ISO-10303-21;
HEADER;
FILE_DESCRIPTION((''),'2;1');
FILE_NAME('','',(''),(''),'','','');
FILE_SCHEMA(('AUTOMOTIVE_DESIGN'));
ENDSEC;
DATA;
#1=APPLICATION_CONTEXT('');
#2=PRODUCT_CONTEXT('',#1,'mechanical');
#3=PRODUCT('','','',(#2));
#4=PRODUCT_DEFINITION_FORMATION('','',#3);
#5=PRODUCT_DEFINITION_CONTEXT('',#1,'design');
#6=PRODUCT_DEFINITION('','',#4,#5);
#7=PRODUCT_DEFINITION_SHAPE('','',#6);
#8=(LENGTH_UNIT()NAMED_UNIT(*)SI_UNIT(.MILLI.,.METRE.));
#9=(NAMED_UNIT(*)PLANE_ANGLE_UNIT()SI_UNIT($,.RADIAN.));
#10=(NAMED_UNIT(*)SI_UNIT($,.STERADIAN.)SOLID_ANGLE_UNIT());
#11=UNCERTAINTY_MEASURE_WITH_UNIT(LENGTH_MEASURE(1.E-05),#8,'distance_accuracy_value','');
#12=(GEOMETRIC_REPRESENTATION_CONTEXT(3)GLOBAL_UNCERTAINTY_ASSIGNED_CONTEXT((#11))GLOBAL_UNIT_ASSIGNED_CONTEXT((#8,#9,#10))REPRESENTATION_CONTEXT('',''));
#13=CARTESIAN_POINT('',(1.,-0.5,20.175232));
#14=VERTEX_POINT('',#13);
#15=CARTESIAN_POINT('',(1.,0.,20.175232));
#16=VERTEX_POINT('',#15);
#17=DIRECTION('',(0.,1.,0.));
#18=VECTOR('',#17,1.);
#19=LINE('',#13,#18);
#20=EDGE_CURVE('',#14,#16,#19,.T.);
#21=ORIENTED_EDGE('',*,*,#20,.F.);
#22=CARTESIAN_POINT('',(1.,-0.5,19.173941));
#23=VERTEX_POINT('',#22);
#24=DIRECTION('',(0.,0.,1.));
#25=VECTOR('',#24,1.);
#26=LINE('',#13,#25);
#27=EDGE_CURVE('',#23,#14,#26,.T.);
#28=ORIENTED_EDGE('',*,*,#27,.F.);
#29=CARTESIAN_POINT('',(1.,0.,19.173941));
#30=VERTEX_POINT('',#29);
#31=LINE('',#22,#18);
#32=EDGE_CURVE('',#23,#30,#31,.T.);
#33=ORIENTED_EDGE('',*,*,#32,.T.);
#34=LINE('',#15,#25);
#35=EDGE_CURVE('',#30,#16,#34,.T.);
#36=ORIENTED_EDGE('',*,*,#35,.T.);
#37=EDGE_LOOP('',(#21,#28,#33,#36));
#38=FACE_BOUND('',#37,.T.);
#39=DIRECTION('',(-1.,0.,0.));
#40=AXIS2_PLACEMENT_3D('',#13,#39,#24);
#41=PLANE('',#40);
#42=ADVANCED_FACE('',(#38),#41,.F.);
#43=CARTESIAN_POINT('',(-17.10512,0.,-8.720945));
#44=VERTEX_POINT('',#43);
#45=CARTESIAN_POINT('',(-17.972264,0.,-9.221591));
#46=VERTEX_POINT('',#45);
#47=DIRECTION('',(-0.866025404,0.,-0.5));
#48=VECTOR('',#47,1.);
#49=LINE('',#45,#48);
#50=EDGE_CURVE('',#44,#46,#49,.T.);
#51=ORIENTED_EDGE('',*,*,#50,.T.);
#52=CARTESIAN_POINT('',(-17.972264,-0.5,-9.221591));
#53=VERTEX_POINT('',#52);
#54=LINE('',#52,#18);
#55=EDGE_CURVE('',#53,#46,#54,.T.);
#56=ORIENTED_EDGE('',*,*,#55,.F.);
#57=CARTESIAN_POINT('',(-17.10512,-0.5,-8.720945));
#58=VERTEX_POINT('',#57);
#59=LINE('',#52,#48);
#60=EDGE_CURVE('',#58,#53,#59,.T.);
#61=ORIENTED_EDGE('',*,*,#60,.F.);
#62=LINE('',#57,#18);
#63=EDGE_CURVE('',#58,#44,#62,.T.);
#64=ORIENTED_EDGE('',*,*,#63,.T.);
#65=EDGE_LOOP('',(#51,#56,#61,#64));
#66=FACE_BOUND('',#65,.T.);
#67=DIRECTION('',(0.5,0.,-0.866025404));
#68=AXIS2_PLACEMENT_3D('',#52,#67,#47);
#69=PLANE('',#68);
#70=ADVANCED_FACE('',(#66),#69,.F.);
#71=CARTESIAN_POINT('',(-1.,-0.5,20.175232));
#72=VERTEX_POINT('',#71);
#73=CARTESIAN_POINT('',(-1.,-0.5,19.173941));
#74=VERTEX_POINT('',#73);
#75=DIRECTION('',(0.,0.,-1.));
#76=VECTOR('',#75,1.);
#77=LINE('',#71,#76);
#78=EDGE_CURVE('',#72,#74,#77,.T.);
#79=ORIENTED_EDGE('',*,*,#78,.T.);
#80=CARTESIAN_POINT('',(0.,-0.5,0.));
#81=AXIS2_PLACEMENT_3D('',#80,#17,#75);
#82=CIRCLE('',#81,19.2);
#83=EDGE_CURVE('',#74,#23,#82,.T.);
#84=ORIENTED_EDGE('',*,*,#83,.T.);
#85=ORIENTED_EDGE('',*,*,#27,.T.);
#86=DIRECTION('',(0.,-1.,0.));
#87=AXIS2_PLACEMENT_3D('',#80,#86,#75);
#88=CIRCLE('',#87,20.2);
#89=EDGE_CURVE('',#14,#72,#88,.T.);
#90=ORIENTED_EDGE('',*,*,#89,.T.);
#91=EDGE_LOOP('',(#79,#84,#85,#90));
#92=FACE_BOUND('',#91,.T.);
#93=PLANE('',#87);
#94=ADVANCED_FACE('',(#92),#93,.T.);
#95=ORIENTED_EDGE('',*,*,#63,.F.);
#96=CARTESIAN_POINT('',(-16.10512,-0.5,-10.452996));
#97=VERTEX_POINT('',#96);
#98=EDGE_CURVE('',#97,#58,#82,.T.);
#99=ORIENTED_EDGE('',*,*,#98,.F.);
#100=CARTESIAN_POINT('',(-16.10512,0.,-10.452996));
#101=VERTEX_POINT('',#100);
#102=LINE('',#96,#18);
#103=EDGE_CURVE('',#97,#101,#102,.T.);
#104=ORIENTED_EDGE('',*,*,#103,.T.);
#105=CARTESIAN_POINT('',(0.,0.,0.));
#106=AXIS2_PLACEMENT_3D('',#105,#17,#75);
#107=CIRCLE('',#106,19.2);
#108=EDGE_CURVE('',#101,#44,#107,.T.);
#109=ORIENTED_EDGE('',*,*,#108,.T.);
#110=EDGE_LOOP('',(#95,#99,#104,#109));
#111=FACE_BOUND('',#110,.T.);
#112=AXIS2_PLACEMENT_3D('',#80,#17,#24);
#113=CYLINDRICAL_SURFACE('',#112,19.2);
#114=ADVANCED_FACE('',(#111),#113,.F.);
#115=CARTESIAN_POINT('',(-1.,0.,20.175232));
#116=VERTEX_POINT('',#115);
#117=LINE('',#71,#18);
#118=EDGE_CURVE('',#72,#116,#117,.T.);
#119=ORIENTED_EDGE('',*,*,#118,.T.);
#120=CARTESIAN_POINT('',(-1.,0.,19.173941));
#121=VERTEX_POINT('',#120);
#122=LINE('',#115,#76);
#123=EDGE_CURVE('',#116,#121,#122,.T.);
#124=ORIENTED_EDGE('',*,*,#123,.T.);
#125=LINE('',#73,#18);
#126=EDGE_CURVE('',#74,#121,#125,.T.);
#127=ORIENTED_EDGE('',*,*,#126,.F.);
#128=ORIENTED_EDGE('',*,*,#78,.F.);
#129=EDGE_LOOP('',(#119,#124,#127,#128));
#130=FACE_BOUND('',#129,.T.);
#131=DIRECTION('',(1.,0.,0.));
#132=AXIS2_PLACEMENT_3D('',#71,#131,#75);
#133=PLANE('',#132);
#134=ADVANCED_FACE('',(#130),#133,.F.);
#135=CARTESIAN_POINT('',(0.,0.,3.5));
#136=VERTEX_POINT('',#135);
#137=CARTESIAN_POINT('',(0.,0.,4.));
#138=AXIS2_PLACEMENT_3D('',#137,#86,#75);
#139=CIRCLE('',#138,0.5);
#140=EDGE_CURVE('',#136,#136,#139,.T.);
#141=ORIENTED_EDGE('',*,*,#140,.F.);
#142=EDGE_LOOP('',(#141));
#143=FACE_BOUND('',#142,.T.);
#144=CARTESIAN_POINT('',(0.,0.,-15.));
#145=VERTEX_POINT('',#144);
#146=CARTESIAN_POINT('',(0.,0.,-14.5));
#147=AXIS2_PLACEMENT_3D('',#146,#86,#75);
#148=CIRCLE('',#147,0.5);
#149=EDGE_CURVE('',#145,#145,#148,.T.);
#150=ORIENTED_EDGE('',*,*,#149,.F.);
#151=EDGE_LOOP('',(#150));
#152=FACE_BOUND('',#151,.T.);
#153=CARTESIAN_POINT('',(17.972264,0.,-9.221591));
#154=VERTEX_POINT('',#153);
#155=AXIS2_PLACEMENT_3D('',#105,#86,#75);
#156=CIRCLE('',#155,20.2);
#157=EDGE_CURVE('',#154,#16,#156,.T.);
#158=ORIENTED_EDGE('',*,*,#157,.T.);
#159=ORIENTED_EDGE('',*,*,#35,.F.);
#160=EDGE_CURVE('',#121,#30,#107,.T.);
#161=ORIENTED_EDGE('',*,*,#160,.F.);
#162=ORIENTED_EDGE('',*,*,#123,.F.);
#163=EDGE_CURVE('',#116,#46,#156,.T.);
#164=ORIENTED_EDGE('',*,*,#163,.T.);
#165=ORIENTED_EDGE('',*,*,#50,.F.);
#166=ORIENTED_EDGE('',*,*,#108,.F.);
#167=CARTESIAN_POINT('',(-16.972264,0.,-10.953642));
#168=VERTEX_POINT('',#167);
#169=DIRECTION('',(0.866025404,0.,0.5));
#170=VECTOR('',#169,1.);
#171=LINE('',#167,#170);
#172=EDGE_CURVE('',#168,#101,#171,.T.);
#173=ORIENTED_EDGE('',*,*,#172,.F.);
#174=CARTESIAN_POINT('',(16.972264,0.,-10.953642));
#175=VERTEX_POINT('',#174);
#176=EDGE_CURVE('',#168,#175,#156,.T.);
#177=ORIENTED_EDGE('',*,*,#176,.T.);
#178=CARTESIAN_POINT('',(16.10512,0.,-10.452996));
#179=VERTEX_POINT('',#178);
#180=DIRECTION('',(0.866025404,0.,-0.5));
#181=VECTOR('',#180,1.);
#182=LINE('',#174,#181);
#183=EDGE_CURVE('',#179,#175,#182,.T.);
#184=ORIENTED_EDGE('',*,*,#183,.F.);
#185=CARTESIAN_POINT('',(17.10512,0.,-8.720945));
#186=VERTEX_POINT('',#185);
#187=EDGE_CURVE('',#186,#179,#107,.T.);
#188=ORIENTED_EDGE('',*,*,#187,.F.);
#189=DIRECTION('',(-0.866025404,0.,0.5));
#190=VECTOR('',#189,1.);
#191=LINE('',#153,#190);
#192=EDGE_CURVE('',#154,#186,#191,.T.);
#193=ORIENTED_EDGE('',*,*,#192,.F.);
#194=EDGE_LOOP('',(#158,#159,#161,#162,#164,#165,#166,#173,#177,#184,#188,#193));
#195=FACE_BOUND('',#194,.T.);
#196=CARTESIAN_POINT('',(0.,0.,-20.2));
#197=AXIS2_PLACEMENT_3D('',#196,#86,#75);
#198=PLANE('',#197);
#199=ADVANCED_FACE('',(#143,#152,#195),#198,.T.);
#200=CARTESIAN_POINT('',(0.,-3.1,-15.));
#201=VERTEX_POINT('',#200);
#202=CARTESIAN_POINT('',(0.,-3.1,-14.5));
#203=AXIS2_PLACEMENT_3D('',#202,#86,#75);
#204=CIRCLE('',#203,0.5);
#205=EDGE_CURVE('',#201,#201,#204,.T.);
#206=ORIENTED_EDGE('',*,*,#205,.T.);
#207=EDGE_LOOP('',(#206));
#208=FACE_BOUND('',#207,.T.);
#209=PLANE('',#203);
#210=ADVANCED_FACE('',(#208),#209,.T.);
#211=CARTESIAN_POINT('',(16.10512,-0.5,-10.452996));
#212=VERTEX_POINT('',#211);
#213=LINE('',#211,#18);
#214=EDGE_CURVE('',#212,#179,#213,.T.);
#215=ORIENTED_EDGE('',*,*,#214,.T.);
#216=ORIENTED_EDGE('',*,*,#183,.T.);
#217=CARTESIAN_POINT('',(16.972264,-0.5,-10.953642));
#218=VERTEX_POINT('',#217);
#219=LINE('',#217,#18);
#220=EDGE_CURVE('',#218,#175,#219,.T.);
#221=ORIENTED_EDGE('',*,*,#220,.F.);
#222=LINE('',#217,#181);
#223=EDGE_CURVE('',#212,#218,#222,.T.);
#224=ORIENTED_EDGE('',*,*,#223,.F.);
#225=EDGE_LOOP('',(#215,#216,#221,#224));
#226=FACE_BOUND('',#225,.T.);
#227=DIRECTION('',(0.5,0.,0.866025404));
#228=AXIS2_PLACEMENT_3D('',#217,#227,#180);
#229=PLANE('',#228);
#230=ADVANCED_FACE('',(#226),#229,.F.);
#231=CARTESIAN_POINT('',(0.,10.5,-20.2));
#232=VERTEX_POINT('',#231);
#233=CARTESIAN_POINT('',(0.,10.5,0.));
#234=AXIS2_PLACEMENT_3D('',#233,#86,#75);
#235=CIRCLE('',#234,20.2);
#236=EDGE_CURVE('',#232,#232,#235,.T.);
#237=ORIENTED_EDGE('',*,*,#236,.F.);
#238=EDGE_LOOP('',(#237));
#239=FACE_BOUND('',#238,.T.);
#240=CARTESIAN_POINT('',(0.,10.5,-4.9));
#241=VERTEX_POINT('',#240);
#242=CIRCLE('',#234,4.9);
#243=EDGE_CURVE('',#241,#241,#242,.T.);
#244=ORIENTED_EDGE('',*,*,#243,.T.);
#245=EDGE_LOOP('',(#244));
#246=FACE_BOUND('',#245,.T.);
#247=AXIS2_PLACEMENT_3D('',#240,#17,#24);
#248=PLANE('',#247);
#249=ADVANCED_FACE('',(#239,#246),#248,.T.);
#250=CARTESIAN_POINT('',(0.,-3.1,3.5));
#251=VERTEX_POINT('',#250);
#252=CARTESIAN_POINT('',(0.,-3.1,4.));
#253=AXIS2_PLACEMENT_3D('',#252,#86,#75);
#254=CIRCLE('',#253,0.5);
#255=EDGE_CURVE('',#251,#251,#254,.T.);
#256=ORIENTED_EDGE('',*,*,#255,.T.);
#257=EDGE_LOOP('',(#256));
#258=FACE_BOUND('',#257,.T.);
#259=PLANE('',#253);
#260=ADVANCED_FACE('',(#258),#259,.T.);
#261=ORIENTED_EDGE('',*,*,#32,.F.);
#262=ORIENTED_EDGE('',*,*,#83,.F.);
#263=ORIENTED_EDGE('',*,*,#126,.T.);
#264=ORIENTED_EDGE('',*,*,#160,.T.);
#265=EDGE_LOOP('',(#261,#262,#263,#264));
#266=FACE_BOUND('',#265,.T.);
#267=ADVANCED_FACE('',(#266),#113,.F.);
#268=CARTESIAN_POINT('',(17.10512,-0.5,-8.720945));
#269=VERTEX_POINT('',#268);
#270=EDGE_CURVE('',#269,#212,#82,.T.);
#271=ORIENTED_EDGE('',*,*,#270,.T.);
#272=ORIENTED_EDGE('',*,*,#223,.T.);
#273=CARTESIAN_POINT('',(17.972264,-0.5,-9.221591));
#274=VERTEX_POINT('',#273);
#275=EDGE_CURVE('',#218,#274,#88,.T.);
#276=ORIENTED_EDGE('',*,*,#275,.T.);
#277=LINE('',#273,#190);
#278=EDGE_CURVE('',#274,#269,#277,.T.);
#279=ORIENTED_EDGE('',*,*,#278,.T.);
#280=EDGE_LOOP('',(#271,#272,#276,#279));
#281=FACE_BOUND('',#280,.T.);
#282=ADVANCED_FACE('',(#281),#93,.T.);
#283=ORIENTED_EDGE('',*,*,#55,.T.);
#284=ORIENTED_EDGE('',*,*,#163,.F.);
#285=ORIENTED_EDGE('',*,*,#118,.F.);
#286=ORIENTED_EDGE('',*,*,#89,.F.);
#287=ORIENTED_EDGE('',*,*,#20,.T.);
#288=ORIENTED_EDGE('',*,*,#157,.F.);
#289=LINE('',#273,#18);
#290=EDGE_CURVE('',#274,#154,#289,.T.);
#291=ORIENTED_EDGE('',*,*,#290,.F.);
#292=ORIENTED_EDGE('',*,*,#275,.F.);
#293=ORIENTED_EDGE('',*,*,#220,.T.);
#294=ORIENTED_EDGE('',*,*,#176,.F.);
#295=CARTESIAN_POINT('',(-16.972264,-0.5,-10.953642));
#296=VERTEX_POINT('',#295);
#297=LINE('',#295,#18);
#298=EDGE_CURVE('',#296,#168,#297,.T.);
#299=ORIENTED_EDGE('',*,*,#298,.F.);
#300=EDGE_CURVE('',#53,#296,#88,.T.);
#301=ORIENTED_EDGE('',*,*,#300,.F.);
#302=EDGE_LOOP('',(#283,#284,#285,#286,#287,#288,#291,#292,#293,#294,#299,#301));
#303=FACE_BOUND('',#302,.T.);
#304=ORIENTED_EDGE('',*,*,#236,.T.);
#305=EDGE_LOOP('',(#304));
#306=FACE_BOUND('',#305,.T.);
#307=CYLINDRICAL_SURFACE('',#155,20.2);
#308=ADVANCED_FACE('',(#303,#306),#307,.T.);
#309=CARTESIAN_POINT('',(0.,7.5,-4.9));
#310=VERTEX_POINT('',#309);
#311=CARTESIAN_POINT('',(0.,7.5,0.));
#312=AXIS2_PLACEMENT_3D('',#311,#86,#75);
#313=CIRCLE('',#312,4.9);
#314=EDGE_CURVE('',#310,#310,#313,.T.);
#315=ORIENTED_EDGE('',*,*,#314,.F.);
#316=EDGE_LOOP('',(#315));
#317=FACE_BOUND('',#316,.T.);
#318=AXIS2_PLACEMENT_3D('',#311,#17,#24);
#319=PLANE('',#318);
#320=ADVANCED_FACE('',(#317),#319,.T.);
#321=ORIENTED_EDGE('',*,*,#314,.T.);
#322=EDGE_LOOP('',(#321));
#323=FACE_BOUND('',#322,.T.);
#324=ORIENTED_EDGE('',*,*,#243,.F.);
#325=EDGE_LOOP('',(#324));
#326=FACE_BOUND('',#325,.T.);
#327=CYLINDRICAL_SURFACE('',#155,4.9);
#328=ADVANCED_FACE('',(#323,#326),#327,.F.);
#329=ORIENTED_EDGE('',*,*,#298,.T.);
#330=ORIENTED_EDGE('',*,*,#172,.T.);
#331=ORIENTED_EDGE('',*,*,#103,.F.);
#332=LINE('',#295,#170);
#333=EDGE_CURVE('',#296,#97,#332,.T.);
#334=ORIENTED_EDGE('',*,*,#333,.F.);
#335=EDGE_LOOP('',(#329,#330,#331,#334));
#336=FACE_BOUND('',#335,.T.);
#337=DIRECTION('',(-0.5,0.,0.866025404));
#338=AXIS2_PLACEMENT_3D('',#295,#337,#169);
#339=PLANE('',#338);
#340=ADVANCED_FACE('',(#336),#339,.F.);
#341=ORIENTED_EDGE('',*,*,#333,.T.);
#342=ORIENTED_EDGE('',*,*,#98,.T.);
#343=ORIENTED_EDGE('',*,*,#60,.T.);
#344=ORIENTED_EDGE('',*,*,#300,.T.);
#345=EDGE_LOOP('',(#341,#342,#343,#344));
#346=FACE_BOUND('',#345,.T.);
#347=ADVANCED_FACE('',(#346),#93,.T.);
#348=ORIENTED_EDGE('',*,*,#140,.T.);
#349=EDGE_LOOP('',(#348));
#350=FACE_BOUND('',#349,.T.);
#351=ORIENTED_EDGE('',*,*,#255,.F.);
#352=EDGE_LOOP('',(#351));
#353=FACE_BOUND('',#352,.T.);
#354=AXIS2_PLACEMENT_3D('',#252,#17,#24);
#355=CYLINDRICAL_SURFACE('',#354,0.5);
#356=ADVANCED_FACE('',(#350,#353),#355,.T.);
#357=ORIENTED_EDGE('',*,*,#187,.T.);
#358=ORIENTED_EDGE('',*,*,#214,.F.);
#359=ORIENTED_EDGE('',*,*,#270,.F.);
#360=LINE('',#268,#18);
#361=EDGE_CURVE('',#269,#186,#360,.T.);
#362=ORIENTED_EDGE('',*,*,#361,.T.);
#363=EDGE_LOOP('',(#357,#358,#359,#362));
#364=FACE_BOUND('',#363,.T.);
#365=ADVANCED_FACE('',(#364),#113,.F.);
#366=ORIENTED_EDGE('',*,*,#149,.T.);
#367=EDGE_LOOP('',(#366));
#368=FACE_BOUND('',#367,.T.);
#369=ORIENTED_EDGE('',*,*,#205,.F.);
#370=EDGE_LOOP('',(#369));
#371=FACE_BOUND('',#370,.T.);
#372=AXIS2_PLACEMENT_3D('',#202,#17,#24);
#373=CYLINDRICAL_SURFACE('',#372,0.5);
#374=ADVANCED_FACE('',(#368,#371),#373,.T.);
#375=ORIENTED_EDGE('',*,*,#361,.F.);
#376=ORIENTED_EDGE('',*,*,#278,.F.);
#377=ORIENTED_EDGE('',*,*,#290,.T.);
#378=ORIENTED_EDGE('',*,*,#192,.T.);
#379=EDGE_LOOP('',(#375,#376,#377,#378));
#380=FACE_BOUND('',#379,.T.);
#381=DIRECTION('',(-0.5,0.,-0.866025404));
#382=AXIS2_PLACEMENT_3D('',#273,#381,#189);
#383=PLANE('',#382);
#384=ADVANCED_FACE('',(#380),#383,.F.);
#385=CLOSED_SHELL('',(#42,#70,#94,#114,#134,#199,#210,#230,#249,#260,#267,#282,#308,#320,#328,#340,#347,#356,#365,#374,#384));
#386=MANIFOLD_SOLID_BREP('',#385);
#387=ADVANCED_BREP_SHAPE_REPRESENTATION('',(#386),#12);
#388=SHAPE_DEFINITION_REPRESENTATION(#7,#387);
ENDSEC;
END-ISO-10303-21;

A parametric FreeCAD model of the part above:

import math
import FreeCAD as App
import Part
import Sketcher

V = App.Vector
Q = App.Units.Quantity


def add_polygon(sketch, points):
    """Adds a closed chain of lines whose ends are joined by coincident constraints."""
    first, n = sketch.GeometryCount, len(points)
    for a, b in zip(points, points[1:] + points[:1]):
        sketch.addGeometry(Part.LineSegment(App.Vector(*a, 0), App.Vector(*b, 0)), False)
    for i in range(n):
        sketch.addConstraint(Sketcher.Constraint("Coincident", first + i, 2, first + (i + 1) % n, 1))

doc = App.newDocument("Part")
body = doc.addObject("PartDesign::Body", "Body")

# Sketch on YZ plane
sketch1 = body.newObject("Sketcher::SketchObject", "Sketch")
sketch1.AttachmentSupport = (doc.getObject("YZ_Plane"), [""])
sketch1.MapMode = "FlatFace"
add_polygon(sketch1, [(0, -20.2), (10.5, -20.2), (10.5, -4.9), (7.5, -4.9), (7.5, 0), (0, 0)])  # lines 0-5
sketch1.addConstraint([
    Sketcher.Constraint("Horizontal", 0),
    Sketcher.Constraint("Vertical", 1),
    Sketcher.Constraint("Horizontal", 2),
    Sketcher.Constraint("Vertical", 3),
    Sketcher.Constraint("Horizontal", 4),
    Sketcher.Constraint("Vertical", 5),
    Sketcher.Constraint("Coincident", 4, 2, -1, 1),
    Sketcher.Constraint("DistanceX", 2, 2, 2, 1, 3.0),
    Sketcher.Constraint("DistanceX", 0, 1, 0, 2, 10.5),
    Sketcher.Constraint("DistanceY", 1, 1, 1, 2, 15.3),
    Sketcher.Constraint("DistanceY", 3, 1, 3, 2, 4.9),
])
revolution = body.newObject("PartDesign::Revolution", "Revolution")
revolution.Profile = sketch1
revolution.ReferenceAxis = (sketch1, ["H_Axis"])
revolution.Angle = 360

# Sketch on XZ plane
sketch2 = body.newObject("Sketcher::SketchObject", "Sketch001")
sketch2.AttachmentSupport = (doc.getObject("XZ_Plane"), [""])
sketch2.MapMode = "FlatFace"
sketch2.AttachmentOffset = App.Placement(V(0, 0, 0.5), App.Rotation())
sketch2.addGeometry([
    Part.LineSegment(V(-1, 20.2, 0), V(-1, 19.2, 0)),  # 0
    Part.ArcOfCircle(Part.Circle(V(0, 0, 0), V(0, 0, 1), 19.2), math.radians(87.01), math.radians(92.99)),  # 1
    Part.LineSegment(V(1, 19.2, 0), V(1, 20.2, 0)),  # 2
    Part.ArcOfCircle(Part.Circle(V(0, 0, 0), V(0, 0, 1), 20.2), math.radians(87.16), math.radians(92.84)),  # 3
    Part.LineSegment(V(18, -9.2, 0), V(17.1, -8.7, 0)),  # 4
    Part.ArcOfCircle(Part.Circle(V(0, 0, 0), V(0, 0, 1), 19.2), math.radians(-32.99), math.radians(-27.01)),  # 5
    Part.LineSegment(V(16.1, -10.5, 0), V(17, -11, 0)),  # 6
    Part.ArcOfCircle(Part.Circle(V(0, 0, 0), V(0, 0, 1), 20.2), math.radians(-32.84), math.radians(-27.16)),  # 7
    Part.LineSegment(V(-17, -11, 0), V(-16.1, -10.5, 0)),  # 8
    Part.ArcOfCircle(Part.Circle(V(0, 0, 0), V(0, 0, 1), 19.2), math.radians(-152.99), math.radians(-147.01)),  # 9
    Part.LineSegment(V(-17.1, -8.7, 0), V(-18, -9.2, 0)),  # 10
    Part.ArcOfCircle(Part.Circle(V(0, 0, 0), V(0, 0, 1), 20.2), math.radians(-152.84), math.radians(-147.16)),  # 11
], False)
sketch2.addConstraint([
    Sketcher.Constraint("Coincident", 0, 2, 1, 2),
    Sketcher.Constraint("Coincident", 1, 1, 2, 1),
    Sketcher.Constraint("Coincident", 2, 2, 3, 1),
    Sketcher.Constraint("Coincident", 3, 2, 0, 1),
    Sketcher.Constraint("Coincident", 4, 2, 5, 2),
    Sketcher.Constraint("Coincident", 5, 1, 6, 1),
    Sketcher.Constraint("Coincident", 6, 2, 7, 1),
    Sketcher.Constraint("Coincident", 7, 2, 4, 1),
    Sketcher.Constraint("Coincident", 8, 2, 9, 2),
    Sketcher.Constraint("Coincident", 9, 1, 10, 1),
    Sketcher.Constraint("Coincident", 10, 2, 11, 1),
    Sketcher.Constraint("Coincident", 11, 2, 8, 1),
    Sketcher.Constraint("Vertical", 0),
    Sketcher.Constraint("Vertical", 2),
    Sketcher.Constraint("Coincident", 1, 3, -1, 1),
    Sketcher.Constraint("Coincident", 3, 3, -1, 1),
    Sketcher.Constraint("Coincident", 5, 3, -1, 1),
    Sketcher.Constraint("Coincident", 7, 3, -1, 1),
    Sketcher.Constraint("Coincident", 9, 3, -1, 1),
    Sketcher.Constraint("Coincident", 11, 3, -1, 1),
    Sketcher.Constraint("Equal", 1, 5),
    Sketcher.Constraint("Equal", 3, 7),
    Sketcher.Constraint("Equal", 5, 9),
    Sketcher.Constraint("Equal", 7, 11),
    Sketcher.Constraint("Parallel", 4, 6),
    Sketcher.Constraint("Parallel", 8, 10),
    Sketcher.Constraint("Horizontal", 0, 2, 1, 1),
    Sketcher.Constraint("Horizontal", 5, 1, 8, 2),
    Sketcher.Constraint("Horizontal", 4, 2, 9, 1),
    Sketcher.Constraint("Horizontal", 7, 2, 10, 2),
    Sketcher.Constraint("Equal", 4, 6),
    Sketcher.Constraint("Radius", 1, 19.2),
    Sketcher.Constraint("Radius", 3, 20.2),
    Sketcher.Constraint("Angle", 4, Q("150 deg")),
    Sketcher.Constraint("DistanceX", 0, 2, -1, 1, 1.0),
    Sketcher.Constraint("DistanceX", 5, 1, 4, 2, 1.0),
])
pad1 = body.newObject("PartDesign::Pad", "Pad")
pad1.Profile = sketch2
pad1.Length = 0.5
pad1.Reversed = True

# Sketch on XZ plane
sketch3 = body.newObject("Sketcher::SketchObject", "Sketch002")
sketch3.AttachmentSupport = (doc.getObject("XZ_Plane"), [""])
sketch3.MapMode = "FlatFace"
sketch3.addGeometry([
    Part.Circle(V(0, 4, 0), V(0, 0, 1), 0.5),
    Part.Circle(V(0, -14.5, 0), V(0, 0, 1), 0.5),
], False)
sketch3.addConstraint([
    Sketcher.Constraint("Equal", 0, 1),
    Sketcher.Constraint("PointOnObject", 0, 3, -2),
    Sketcher.Constraint("PointOnObject", 1, 3, -2),
    Sketcher.Constraint("Diameter", 0, 1.0),
    Sketcher.Constraint("DistanceY", -1, 1, 0, 3, 4.0),
    Sketcher.Constraint("DistanceY", 1, 3, -1, 1, 14.5),
])
pad2 = body.newObject("PartDesign::Pad", "Pad001")
pad2.Profile = sketch3
pad2.Length = 3.1

doc.recompute()
